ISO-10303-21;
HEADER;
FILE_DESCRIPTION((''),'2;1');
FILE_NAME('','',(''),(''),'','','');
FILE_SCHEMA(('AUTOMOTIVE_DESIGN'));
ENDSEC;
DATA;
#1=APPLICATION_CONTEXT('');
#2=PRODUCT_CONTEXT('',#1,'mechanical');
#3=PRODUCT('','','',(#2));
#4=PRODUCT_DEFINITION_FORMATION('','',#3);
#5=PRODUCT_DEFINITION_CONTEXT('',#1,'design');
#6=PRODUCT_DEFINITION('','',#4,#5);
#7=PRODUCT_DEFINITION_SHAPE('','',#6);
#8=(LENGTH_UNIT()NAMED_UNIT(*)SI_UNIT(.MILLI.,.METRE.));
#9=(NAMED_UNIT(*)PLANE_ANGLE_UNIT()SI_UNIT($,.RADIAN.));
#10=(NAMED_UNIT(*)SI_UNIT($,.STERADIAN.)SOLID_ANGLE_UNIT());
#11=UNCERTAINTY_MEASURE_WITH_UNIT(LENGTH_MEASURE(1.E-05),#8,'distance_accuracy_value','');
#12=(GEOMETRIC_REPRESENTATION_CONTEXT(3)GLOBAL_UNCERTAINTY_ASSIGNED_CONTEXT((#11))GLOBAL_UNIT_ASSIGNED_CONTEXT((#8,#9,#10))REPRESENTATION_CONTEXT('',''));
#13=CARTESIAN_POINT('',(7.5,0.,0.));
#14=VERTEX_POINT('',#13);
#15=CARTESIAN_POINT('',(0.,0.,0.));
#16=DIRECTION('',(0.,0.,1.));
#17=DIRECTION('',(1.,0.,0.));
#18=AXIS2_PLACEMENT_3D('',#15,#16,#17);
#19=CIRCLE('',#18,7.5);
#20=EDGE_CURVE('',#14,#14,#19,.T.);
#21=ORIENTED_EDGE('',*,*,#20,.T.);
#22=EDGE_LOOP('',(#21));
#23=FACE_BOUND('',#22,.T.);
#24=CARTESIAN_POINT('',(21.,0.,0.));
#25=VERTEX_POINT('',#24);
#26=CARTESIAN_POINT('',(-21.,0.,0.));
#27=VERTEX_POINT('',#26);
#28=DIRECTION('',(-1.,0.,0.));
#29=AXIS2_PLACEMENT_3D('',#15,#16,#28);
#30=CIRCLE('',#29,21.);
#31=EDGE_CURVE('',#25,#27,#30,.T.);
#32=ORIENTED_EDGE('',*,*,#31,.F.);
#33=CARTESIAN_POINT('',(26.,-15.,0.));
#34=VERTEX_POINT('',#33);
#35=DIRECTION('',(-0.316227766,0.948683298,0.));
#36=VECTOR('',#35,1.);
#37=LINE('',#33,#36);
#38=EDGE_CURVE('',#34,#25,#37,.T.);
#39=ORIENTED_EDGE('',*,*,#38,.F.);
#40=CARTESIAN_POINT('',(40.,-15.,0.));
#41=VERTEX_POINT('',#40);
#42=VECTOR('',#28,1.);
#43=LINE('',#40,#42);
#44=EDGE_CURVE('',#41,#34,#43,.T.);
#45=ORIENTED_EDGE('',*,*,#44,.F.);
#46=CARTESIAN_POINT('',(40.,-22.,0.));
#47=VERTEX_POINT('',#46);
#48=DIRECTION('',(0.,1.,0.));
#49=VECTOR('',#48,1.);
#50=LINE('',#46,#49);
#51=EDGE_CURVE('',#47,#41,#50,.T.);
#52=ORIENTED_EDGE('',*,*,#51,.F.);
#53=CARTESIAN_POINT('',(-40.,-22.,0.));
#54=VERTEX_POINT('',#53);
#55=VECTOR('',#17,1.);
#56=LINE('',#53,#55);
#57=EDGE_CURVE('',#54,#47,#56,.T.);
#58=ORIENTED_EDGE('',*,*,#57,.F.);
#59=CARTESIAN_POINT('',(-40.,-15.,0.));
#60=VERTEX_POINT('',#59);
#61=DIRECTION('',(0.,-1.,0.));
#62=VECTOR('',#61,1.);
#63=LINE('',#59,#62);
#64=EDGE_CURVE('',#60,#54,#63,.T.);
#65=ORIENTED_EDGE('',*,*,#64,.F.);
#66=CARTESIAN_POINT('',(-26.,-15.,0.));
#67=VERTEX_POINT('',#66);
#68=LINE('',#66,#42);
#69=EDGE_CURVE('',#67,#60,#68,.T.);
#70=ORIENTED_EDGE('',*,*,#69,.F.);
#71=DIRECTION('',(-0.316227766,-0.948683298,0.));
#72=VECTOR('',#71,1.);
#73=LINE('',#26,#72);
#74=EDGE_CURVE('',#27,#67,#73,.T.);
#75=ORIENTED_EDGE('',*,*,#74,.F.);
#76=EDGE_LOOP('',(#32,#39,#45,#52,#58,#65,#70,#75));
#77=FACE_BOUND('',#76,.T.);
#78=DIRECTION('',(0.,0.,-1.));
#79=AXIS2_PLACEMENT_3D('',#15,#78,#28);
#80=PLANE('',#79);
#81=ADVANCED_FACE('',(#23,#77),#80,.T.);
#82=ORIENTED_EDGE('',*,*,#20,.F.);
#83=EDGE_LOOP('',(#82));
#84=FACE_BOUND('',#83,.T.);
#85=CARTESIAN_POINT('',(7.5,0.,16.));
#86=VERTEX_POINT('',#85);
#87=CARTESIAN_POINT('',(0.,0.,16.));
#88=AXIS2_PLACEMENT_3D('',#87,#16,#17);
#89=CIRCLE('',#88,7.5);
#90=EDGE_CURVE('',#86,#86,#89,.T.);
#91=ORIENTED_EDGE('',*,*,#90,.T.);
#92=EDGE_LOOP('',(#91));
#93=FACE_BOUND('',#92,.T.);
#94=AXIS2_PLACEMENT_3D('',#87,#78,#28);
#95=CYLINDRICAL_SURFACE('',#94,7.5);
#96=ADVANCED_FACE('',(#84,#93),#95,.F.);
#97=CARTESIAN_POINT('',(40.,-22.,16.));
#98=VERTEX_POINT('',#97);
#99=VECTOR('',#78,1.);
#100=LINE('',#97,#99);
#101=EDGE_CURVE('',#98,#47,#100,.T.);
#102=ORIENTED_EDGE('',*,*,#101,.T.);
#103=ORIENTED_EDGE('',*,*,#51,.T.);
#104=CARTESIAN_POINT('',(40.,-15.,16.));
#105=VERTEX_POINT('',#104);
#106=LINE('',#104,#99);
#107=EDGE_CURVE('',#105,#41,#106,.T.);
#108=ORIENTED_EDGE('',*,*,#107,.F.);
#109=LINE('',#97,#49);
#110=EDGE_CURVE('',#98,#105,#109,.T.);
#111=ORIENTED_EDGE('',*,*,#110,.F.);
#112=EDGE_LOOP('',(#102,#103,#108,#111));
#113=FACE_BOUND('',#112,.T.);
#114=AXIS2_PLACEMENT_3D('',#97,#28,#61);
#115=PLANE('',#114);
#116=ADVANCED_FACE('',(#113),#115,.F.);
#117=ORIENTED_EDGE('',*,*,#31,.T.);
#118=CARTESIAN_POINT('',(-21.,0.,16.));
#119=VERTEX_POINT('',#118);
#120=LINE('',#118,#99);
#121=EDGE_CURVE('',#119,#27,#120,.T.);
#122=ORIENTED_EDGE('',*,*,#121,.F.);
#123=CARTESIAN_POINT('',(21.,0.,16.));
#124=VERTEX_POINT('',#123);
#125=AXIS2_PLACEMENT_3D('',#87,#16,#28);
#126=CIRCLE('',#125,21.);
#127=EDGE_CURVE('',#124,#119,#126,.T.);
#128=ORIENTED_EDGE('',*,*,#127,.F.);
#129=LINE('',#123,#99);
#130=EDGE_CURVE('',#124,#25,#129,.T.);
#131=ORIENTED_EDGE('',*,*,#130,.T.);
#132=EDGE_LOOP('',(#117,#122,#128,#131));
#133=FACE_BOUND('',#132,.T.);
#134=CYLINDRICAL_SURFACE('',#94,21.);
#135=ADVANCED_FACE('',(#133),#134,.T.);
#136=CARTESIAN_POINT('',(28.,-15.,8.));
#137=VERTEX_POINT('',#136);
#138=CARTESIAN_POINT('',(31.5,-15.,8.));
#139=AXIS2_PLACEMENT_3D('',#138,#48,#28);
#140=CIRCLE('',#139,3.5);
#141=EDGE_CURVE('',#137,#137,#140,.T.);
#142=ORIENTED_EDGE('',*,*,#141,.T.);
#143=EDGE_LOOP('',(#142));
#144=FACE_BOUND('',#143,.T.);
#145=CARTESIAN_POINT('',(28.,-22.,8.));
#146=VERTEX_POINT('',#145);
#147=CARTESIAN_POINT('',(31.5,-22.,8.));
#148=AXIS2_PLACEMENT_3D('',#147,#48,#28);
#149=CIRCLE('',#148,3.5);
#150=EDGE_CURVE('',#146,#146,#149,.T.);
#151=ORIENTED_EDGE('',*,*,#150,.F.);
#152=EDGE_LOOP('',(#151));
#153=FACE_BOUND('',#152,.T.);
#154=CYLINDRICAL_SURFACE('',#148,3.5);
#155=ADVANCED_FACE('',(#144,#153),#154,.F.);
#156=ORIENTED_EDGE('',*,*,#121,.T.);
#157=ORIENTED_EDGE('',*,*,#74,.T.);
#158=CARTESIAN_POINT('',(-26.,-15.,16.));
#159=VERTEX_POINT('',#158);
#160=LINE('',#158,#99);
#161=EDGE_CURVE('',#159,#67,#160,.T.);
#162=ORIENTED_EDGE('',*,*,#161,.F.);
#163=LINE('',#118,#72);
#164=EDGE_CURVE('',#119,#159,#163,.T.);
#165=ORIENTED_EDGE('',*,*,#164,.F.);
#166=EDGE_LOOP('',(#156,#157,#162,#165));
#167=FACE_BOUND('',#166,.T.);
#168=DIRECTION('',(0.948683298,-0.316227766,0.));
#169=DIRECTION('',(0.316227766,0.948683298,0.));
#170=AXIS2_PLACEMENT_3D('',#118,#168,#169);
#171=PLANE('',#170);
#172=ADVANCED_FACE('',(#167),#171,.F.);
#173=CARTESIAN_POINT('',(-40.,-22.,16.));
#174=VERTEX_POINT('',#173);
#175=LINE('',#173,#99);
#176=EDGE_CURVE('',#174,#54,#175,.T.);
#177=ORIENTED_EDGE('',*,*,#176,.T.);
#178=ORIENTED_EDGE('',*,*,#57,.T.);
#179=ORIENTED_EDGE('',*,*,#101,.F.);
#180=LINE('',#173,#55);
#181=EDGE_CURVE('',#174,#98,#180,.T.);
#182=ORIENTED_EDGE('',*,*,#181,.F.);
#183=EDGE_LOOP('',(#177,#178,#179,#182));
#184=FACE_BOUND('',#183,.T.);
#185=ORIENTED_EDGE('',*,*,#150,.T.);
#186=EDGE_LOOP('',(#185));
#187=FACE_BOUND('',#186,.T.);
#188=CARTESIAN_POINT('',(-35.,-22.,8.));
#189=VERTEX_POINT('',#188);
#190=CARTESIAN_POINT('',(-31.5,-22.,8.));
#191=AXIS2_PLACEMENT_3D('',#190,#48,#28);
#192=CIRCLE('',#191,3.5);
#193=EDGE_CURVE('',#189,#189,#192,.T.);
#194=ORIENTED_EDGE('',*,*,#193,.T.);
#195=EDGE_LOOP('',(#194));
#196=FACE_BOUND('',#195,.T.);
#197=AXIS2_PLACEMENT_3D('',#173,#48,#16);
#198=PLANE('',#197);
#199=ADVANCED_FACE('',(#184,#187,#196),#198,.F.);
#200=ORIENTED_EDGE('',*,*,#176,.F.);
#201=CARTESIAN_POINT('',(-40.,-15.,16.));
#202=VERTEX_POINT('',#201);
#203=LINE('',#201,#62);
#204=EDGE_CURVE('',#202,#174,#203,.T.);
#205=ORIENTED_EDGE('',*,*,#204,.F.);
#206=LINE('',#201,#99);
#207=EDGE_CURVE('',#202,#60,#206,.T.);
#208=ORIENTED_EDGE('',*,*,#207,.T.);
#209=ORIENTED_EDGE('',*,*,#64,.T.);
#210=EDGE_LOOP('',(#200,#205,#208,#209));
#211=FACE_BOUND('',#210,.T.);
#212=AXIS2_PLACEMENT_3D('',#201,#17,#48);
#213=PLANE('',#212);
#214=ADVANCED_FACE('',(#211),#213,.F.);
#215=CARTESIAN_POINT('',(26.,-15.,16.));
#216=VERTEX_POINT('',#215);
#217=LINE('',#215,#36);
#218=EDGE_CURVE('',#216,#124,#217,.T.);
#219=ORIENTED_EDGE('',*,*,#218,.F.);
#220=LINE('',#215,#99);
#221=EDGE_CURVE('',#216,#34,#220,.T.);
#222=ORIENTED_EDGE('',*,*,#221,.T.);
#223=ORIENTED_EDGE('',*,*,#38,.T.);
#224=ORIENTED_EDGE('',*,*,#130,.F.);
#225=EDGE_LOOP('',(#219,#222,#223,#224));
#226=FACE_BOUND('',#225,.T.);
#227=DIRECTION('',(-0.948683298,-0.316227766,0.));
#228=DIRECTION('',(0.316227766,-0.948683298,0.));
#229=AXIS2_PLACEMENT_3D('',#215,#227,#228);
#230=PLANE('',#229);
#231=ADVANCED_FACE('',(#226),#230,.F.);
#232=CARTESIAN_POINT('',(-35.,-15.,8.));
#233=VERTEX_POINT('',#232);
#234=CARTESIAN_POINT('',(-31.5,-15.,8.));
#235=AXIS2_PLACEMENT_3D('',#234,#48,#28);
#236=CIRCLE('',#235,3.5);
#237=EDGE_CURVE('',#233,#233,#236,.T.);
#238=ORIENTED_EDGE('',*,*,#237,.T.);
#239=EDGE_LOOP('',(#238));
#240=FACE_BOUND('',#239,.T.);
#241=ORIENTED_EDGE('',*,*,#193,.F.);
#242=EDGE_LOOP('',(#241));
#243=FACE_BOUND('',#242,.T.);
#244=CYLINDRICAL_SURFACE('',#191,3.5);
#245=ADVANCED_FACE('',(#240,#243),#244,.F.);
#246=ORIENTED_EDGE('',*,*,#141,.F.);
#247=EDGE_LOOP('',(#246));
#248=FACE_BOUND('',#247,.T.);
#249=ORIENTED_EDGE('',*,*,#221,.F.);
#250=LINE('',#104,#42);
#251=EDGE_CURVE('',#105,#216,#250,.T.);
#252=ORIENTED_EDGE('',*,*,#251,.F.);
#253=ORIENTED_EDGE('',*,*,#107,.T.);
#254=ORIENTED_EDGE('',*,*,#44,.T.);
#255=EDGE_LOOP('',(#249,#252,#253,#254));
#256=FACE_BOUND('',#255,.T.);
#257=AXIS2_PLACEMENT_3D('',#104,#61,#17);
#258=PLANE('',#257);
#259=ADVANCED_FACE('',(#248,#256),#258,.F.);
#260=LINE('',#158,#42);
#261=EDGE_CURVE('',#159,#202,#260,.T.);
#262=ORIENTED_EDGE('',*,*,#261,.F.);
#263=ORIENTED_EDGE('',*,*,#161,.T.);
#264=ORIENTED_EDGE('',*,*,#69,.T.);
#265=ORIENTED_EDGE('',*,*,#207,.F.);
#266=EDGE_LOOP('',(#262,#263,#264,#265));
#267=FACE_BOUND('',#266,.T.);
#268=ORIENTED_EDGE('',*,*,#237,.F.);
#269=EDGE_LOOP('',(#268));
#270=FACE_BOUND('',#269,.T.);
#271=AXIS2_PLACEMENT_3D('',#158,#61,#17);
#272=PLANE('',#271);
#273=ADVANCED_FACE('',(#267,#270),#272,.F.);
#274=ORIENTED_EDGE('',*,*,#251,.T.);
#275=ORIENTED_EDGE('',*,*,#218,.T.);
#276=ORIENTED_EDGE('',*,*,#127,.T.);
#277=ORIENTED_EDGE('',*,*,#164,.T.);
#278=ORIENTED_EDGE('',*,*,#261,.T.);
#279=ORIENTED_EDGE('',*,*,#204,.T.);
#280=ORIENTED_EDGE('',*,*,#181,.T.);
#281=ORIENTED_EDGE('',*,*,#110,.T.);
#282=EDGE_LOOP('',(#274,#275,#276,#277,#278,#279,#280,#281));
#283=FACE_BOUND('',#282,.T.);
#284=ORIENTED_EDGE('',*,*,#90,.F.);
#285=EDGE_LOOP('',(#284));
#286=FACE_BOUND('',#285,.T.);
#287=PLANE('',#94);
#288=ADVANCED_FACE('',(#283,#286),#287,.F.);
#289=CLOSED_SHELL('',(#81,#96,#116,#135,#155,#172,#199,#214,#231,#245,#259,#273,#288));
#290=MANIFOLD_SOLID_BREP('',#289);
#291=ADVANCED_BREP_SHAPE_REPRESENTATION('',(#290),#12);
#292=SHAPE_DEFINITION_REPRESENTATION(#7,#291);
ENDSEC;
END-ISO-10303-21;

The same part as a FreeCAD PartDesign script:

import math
import FreeCAD as App
import Part
import Sketcher

doc = App.newDocument("Part")
body = doc.addObject("PartDesign::Body", "Body")

# Sketch on XY plane
sketch1 = body.newObject("Sketcher::SketchObject", "Sketch")
sketch1.AttachmentSupport = (doc.getObject("XY_Plane"), [""])
sketch1.MapMode = "FlatFace"
sketch1.addGeometry([
    Part.LineSegment(App.Vector(-21, 0, 0), App.Vector(-26, -15, 0)),  # 0
    Part.LineSegment(App.Vector(-26, -15, 0), App.Vector(-40, -15, 0)),  # 1
    Part.LineSegment(App.Vector(-40, -15, 0), App.Vector(-40, -22, 0)),  # 2
    Part.LineSegment(App.Vector(-40, -22, 0), App.Vector(40, -22, 0)),  # 3
    Part.LineSegment(App.Vector(40, -22, 0), App.Vector(40, -15, 0)),  # 4
    Part.LineSegment(App.Vector(40, -15, 0), App.Vector(26, -15, 0)),  # 5
    Part.LineSegment(App.Vector(26, -15, 0), App.Vector(21, 0, 0)),  # 6
    Part.ArcOfCircle(Part.Circle(App.Vector(0, 0, 0), App.Vector(0, 0, 1), 21), math.radians(0), math.radians(180)),  # 7
    Part.Circle(App.Vector(0, 0, 0), App.Vector(0, 0, 1), 8),  # 8
], False)
sketch1.addConstraint([
    Sketcher.Constraint("Coincident", 0, 2, 1, 1),
    Sketcher.Constraint("Coincident", 1, 2, 2, 1),
    Sketcher.Constraint("Coincident", 2, 2, 3, 1),
    Sketcher.Constraint("Coincident", 3, 2, 4, 1),
    Sketcher.Constraint("Coincident", 4, 2, 5, 1),
    Sketcher.Constraint("Coincident", 5, 2, 6, 1),
    Sketcher.Constraint("Coincident", 6, 2, 7, 1),
    Sketcher.Constraint("Coincident", 7, 2, 0, 1),
    Sketcher.Constraint("Horizontal", 1),
    Sketcher.Constraint("Vertical", 2),
    Sketcher.Constraint("Horizontal", 3),
    Sketcher.Constraint("Vertical", 4),
    Sketcher.Constraint("Horizontal", 5),
    Sketcher.Constraint("Coincident", 7, 3, -1, 1),
    Sketcher.Constraint("Coincident", 8, 3, -1, 1),
    Sketcher.Constraint("Symmetric", 1, 2, 4, 2, -2),
    Sketcher.Constraint("PointOnObject", 6, 2, -1),
    Sketcher.Constraint("PointOnObject", 7, 2, -1),
    Sketcher.Constraint("Equal", 1, 5),
    Sketcher.Constraint("Diameter", 8, 15.0),
    Sketcher.Constraint("Radius", 7, 21.0),
    Sketcher.Constraint("DistanceX", 1, 2, 1, 1, 14.0),
    Sketcher.Constraint("DistanceX", 3, 1, 3, 2, 80.0),
    Sketcher.Constraint("DistanceY", 2, 2, 2, 1, 7.0),
    Sketcher.Constraint("DistanceY", 0, 2, -1, 1, 15.0),
])
pad1 = body.newObject("PartDesign::Pad", "Pad")
pad1.Profile = sketch1
pad1.Length = 16

# Sketch on XZ plane
sketch2 = body.newObject("Sketcher::SketchObject", "Sketch001")
sketch2.AttachmentSupport = (doc.getObject("XZ_Plane"), [""])
sketch2.MapMode = "FlatFace"
sketch2.AttachmentOffset = App.Placement(App.Vector(0, 0, 15), App.Rotation())
sketch2.addGeometry([
    Part.Circle(App.Vector(-31.5, 8, 0), App.Vector(0, 0, 1), 3.5),
    Part.Circle(App.Vector(31.5, 8, 0), App.Vector(0, 0, 1), 3.5),
], False)
sketch2.addConstraint([
    Sketcher.Constraint("Equal", 0, 1),
    Sketcher.Constraint("Symmetric", 0, 3, 1, 3, -2),
    Sketcher.Constraint("Diameter", 0, 7.0),
    Sketcher.Constraint("DistanceY", -1, 1, 0, 3, 8.0),
    Sketcher.Constraint("DistanceX", 0, 3, 1, 3, 63.0),
])
pocket1 = body.newObject("PartDesign::Pocket", "Pocket")
pocket1.Profile = sketch2
pocket1.Type = "ThroughAll"
pocket1.Reversed = True

doc.recompute()
